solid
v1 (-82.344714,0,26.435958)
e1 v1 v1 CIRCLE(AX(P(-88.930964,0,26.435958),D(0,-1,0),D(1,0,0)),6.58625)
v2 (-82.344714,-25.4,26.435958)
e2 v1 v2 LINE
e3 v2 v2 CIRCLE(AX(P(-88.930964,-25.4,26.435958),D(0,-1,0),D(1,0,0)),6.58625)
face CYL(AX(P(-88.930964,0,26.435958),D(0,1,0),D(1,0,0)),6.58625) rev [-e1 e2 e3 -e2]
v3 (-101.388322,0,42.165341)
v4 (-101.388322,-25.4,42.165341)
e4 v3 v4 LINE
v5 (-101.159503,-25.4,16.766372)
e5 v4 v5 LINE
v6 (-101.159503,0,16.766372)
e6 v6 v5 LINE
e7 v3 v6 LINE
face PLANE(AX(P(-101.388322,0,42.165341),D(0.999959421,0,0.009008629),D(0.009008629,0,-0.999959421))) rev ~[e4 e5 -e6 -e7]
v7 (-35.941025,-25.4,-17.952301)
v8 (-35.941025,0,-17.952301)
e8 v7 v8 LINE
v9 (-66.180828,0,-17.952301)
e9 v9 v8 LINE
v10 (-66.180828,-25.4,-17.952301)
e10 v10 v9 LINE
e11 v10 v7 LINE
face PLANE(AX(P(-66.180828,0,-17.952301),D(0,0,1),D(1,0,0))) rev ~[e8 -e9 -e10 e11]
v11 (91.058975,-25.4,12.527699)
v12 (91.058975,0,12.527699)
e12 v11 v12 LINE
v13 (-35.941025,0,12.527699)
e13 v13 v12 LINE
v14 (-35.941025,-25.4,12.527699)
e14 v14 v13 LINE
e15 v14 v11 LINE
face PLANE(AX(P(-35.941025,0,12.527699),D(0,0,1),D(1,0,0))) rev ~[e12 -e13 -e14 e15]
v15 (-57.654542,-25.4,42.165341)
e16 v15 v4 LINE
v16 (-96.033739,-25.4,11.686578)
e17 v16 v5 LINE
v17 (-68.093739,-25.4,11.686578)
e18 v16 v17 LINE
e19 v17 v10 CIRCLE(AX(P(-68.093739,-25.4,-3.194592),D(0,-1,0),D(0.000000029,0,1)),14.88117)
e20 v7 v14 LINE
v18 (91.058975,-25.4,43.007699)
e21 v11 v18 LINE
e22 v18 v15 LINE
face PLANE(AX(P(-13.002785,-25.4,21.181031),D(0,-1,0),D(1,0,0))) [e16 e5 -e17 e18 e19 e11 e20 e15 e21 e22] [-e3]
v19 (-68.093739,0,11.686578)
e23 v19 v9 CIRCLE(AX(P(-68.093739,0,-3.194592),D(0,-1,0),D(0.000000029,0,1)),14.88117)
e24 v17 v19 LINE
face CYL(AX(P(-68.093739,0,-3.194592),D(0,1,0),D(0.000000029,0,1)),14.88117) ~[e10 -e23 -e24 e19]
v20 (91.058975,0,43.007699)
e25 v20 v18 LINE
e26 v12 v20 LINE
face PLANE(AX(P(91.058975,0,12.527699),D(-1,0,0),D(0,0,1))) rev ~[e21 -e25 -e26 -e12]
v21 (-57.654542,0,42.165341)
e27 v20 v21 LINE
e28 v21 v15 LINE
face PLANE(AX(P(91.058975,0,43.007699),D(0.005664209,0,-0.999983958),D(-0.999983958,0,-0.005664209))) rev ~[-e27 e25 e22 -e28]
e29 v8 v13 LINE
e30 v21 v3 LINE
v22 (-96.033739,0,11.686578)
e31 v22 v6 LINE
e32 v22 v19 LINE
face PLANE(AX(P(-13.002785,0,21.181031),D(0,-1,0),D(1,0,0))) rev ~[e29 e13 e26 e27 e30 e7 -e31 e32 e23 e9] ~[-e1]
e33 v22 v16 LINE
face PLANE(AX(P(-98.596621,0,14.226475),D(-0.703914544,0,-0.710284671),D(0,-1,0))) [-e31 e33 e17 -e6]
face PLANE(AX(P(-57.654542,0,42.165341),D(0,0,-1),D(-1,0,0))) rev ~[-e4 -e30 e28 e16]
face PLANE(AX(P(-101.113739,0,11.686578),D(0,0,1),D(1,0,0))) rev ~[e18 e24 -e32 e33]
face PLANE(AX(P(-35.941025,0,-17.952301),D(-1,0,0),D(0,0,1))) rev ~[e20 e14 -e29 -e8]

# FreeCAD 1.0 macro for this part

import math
import FreeCAD as App
import Part
import Sketcher

V = App.Vector
Q = App.Units.Quantity


def edges_at(feature, points):
    """Names of the edges that pass closest to the given points."""
    edges = feature.Shape.Edges
    near = lambda p: min(range(len(edges)), key=lambda i: edges[i].distToShape(Part.Vertex(*p))[0])
    return sorted({f"Edge{near(p) + 1}" for p in points})

doc = App.newDocument("Part")
body = doc.addObject("PartDesign::Body", "Body")

# Sketch on XZ plane
sketch1 = body.newObject("Sketcher::SketchObject", "Sketch")
sketch1.AttachmentSupport = (doc.getObject("XZ_Plane"), [""])
sketch1.MapMode = "FlatFace"
sketch1.addGeometry([
    Part.LineSegment(V(91.058975, 12.527699, 0), V(91.058975, 43.007699, 0)),  # 0
    Part.LineSegment(V(91.058975, 43.007699, 0), V(-57.654542, 42.165341, 0)),  # 1
    Part.LineSegment(V(-57.654542, 42.165341, 0), V(-101.388322, 42.165341, 0)),  # 2
    Part.LineSegment(V(-101.388322, 42.165341, 0), V(-101.113739, 11.686578, 0)),  # 3
    Part.LineSegment(V(-101.113739, 11.686578, 0), V(-68.093739, 11.686578, 0)),  # 4
    Part.ArcOfCircle(Part.Circle(V(-68.093739, -3.194592, 0), V(0, 0, 1), 14.88117), math.radians(89.999998), math.radians(277.385566)),  # 5
    Part.LineSegment(V(-66.180828, -17.952301, 0), V(-35.941025, -17.952301, 0)),  # 6
    Part.LineSegment(V(-35.941025, -17.952301, 0), V(-35.941025, 12.527699, 0)),  # 7
    Part.LineSegment(V(-35.941025, 12.527699, 0), V(91.058975, 12.527699, 0)),  # 8
    Part.Circle(V(-88.930964, 26.435958, 0), V(0, 0, 1), 6.58625),  # 9
], False)
sketch1.addConstraint([
    Sketcher.Constraint("Coincident", 0, 2, 1, 1),
    Sketcher.Constraint("Coincident", 1, 2, 2, 1),
    Sketcher.Constraint("Coincident", 2, 2, 3, 1),
    Sketcher.Constraint("Coincident", 3, 2, 4, 1),
    Sketcher.Constraint("Tangent", 4, 2, 5, 1),
    Sketcher.Constraint("Coincident", 5, 2, 6, 1),
    Sketcher.Constraint("Coincident", 6, 2, 7, 1),
    Sketcher.Constraint("Coincident", 7, 2, 8, 1),
    Sketcher.Constraint("Coincident", 8, 2, 0, 1),
    Sketcher.Constraint("Vertical", 0),
    Sketcher.Constraint("Horizontal", 2),
    Sketcher.Constraint("Horizontal", 4),
    Sketcher.Constraint("Horizontal", 6),
    Sketcher.Constraint("Vertical", 7),
    Sketcher.Constraint("Horizontal", 8),
    Sketcher.Constraint("Equal", 0, 7),
    Sketcher.Constraint("DistanceX", 8, 1, 8, 2, Q("5 in")),
    Sketcher.Constraint("DistanceX", 4, 1, 4, 2, Q("1.3 in")),
    Sketcher.Constraint("DistanceY", 0, 1, 0, 2, Q("1.2 in")),
    Sketcher.Constraint("Distance", 3, Q("1.2 in")),
    Sketcher.Constraint("Diameter", 9, 13.1725),
    Sketcher.Constraint("Radius", 5, 14.88117),
    Sketcher.Constraint("DistanceX", 2, 2, 2, 1, 43.73378),
    Sketcher.Constraint("DistanceY", -1, 1, 0, 2, 43.007699),
    Sketcher.Constraint("DistanceX", 6, 1, 6, 2, 30.239803),
    Sketcher.Constraint("DistanceX", 5, 3, -1, 1, 68.093739),
    Sketcher.Constraint("DistanceY", 5, 3, -1, 1, 3.194592),
    Sketcher.Constraint("DistanceY", -1, 1, 1, 2, 42.165341),
    Sketcher.Constraint("DistanceY", 5, 3, 9, 3, 29.63055),
    Sketcher.Constraint("DistanceX", 9, 3, 0, 2, 179.989939),
])
pad1 = body.newObject("PartDesign::Pad", "Pad")
pad1.Profile = sketch1
pad1.Length = Q("0.83 in")

# Sketch on XZ plane
sketch2 = body.newObject("Sketcher::SketchObject", "Sketch001")
sketch2.AttachmentSupport = (doc.getObject("XZ_Plane"), [""])
sketch2.MapMode = "FlatFace"
sketch2.addGeometry([
    Part.LineSegment(V(91.058975, 12.527699, 0), V(91.058975, 43.007699, 0)),  # 0
    Part.LineSegment(V(91.058975, 43.007699, 0), V(-57.654542, 42.165341, 0)),  # 1
    Part.LineSegment(V(-57.654542, 42.165341, 0), V(-101.388322, 42.165341, 0)),  # 2
    Part.LineSegment(V(-101.388322, 42.165341, 0), V(-101.113739, 11.686578, 0)),  # 3
    Part.LineSegment(V(-101.113739, 11.686578, 0), V(-68.093739, 11.686578, 0)),  # 4
    Part.ArcOfCircle(Part.Circle(V(-68.093739, -3.194592, 0), V(0, 0, 1), 14.88117), math.radians(89.999998), math.radians(277.385566)),  # 5
    Part.LineSegment(V(-66.180828, -17.952301, 0), V(-35.941025, -17.952301, 0)),  # 6
    Part.LineSegment(V(-35.941025, -17.952301, 0), V(-35.941025, 12.527699, 0)),  # 7
    Part.LineSegment(V(-35.941025, 12.527699, 0), V(91.058975, 12.527699, 0)),  # 8
    Part.Circle(V(-88.930964, 26.435958, 0), V(0, 0, 1), 6.58625),  # 9
], False)
sketch2.addConstraint([
    Sketcher.Constraint("Coincident", 0, 2, 1, 1),
    Sketcher.Constraint("Coincident", 1, 2, 2, 1),
    Sketcher.Constraint("Coincident", 2, 2, 3, 1),
    Sketcher.Constraint("Coincident", 3, 2, 4, 1),
    Sketcher.Constraint("Tangent", 4, 2, 5, 1),
    Sketcher.Constraint("Coincident", 5, 2, 6, 1),
    Sketcher.Constraint("Coincident", 6, 2, 7, 1),
    Sketcher.Constraint("Coincident", 7, 2, 8, 1),
    Sketcher.Constraint("Coincident", 8, 2, 0, 1),
    Sketcher.Constraint("Vertical", 0),
    Sketcher.Constraint("Horizontal", 2),
    Sketcher.Constraint("Horizontal", 4),
    Sketcher.Constraint("Horizontal", 6),
    Sketcher.Constraint("Vertical", 7),
    Sketcher.Constraint("Horizontal", 8),
    Sketcher.Constraint("Equal", 0, 7),
    Sketcher.Constraint("DistanceX", 8, 1, 8, 2, Q("5 in")),
    Sketcher.Constraint("DistanceX", 4, 1, 4, 2, Q("1.3 in")),
    Sketcher.Constraint("DistanceY", 0, 1, 0, 2, Q("1.2 in")),
    Sketcher.Constraint("Distance", 3, Q("1.2 in")),
    Sketcher.Constraint("Diameter", 9, 13.1725),
    Sketcher.Constraint("Radius", 5, 14.88117),
    Sketcher.Constraint("DistanceX", 2, 2, 2, 1, 43.73378),
    Sketcher.Constraint("DistanceY", -1, 1, 0, 2, 43.007699),
    Sketcher.Constraint("DistanceX", 6, 1, 6, 2, 30.239803),
    Sketcher.Constraint("DistanceX", 5, 3, -1, 1, 68.093739),
    Sketcher.Constraint("DistanceY", 5, 3, -1, 1, 3.194592),
    Sketcher.Constraint("DistanceY", -1, 1, 1, 2, 42.165341),
    Sketcher.Constraint("DistanceY", 5, 3, 9, 3, 29.63055),
    Sketcher.Constraint("DistanceX", 9, 3, 0, 2, 179.989939),
])
pad2 = body.newObject("PartDesign::Pad", "Pad001")
pad2.Profile = sketch2
pad2.Length = Q("1 in")
doc.recompute()

chamfer = body.newObject("PartDesign::Chamfer", "Chamfer")
chamfer.Base = (pad2, edges_at(pad2, [(-101.114, -12.7, 11.687)]))
chamfer.Size = Q("0.2 in")

doc.recompute()
